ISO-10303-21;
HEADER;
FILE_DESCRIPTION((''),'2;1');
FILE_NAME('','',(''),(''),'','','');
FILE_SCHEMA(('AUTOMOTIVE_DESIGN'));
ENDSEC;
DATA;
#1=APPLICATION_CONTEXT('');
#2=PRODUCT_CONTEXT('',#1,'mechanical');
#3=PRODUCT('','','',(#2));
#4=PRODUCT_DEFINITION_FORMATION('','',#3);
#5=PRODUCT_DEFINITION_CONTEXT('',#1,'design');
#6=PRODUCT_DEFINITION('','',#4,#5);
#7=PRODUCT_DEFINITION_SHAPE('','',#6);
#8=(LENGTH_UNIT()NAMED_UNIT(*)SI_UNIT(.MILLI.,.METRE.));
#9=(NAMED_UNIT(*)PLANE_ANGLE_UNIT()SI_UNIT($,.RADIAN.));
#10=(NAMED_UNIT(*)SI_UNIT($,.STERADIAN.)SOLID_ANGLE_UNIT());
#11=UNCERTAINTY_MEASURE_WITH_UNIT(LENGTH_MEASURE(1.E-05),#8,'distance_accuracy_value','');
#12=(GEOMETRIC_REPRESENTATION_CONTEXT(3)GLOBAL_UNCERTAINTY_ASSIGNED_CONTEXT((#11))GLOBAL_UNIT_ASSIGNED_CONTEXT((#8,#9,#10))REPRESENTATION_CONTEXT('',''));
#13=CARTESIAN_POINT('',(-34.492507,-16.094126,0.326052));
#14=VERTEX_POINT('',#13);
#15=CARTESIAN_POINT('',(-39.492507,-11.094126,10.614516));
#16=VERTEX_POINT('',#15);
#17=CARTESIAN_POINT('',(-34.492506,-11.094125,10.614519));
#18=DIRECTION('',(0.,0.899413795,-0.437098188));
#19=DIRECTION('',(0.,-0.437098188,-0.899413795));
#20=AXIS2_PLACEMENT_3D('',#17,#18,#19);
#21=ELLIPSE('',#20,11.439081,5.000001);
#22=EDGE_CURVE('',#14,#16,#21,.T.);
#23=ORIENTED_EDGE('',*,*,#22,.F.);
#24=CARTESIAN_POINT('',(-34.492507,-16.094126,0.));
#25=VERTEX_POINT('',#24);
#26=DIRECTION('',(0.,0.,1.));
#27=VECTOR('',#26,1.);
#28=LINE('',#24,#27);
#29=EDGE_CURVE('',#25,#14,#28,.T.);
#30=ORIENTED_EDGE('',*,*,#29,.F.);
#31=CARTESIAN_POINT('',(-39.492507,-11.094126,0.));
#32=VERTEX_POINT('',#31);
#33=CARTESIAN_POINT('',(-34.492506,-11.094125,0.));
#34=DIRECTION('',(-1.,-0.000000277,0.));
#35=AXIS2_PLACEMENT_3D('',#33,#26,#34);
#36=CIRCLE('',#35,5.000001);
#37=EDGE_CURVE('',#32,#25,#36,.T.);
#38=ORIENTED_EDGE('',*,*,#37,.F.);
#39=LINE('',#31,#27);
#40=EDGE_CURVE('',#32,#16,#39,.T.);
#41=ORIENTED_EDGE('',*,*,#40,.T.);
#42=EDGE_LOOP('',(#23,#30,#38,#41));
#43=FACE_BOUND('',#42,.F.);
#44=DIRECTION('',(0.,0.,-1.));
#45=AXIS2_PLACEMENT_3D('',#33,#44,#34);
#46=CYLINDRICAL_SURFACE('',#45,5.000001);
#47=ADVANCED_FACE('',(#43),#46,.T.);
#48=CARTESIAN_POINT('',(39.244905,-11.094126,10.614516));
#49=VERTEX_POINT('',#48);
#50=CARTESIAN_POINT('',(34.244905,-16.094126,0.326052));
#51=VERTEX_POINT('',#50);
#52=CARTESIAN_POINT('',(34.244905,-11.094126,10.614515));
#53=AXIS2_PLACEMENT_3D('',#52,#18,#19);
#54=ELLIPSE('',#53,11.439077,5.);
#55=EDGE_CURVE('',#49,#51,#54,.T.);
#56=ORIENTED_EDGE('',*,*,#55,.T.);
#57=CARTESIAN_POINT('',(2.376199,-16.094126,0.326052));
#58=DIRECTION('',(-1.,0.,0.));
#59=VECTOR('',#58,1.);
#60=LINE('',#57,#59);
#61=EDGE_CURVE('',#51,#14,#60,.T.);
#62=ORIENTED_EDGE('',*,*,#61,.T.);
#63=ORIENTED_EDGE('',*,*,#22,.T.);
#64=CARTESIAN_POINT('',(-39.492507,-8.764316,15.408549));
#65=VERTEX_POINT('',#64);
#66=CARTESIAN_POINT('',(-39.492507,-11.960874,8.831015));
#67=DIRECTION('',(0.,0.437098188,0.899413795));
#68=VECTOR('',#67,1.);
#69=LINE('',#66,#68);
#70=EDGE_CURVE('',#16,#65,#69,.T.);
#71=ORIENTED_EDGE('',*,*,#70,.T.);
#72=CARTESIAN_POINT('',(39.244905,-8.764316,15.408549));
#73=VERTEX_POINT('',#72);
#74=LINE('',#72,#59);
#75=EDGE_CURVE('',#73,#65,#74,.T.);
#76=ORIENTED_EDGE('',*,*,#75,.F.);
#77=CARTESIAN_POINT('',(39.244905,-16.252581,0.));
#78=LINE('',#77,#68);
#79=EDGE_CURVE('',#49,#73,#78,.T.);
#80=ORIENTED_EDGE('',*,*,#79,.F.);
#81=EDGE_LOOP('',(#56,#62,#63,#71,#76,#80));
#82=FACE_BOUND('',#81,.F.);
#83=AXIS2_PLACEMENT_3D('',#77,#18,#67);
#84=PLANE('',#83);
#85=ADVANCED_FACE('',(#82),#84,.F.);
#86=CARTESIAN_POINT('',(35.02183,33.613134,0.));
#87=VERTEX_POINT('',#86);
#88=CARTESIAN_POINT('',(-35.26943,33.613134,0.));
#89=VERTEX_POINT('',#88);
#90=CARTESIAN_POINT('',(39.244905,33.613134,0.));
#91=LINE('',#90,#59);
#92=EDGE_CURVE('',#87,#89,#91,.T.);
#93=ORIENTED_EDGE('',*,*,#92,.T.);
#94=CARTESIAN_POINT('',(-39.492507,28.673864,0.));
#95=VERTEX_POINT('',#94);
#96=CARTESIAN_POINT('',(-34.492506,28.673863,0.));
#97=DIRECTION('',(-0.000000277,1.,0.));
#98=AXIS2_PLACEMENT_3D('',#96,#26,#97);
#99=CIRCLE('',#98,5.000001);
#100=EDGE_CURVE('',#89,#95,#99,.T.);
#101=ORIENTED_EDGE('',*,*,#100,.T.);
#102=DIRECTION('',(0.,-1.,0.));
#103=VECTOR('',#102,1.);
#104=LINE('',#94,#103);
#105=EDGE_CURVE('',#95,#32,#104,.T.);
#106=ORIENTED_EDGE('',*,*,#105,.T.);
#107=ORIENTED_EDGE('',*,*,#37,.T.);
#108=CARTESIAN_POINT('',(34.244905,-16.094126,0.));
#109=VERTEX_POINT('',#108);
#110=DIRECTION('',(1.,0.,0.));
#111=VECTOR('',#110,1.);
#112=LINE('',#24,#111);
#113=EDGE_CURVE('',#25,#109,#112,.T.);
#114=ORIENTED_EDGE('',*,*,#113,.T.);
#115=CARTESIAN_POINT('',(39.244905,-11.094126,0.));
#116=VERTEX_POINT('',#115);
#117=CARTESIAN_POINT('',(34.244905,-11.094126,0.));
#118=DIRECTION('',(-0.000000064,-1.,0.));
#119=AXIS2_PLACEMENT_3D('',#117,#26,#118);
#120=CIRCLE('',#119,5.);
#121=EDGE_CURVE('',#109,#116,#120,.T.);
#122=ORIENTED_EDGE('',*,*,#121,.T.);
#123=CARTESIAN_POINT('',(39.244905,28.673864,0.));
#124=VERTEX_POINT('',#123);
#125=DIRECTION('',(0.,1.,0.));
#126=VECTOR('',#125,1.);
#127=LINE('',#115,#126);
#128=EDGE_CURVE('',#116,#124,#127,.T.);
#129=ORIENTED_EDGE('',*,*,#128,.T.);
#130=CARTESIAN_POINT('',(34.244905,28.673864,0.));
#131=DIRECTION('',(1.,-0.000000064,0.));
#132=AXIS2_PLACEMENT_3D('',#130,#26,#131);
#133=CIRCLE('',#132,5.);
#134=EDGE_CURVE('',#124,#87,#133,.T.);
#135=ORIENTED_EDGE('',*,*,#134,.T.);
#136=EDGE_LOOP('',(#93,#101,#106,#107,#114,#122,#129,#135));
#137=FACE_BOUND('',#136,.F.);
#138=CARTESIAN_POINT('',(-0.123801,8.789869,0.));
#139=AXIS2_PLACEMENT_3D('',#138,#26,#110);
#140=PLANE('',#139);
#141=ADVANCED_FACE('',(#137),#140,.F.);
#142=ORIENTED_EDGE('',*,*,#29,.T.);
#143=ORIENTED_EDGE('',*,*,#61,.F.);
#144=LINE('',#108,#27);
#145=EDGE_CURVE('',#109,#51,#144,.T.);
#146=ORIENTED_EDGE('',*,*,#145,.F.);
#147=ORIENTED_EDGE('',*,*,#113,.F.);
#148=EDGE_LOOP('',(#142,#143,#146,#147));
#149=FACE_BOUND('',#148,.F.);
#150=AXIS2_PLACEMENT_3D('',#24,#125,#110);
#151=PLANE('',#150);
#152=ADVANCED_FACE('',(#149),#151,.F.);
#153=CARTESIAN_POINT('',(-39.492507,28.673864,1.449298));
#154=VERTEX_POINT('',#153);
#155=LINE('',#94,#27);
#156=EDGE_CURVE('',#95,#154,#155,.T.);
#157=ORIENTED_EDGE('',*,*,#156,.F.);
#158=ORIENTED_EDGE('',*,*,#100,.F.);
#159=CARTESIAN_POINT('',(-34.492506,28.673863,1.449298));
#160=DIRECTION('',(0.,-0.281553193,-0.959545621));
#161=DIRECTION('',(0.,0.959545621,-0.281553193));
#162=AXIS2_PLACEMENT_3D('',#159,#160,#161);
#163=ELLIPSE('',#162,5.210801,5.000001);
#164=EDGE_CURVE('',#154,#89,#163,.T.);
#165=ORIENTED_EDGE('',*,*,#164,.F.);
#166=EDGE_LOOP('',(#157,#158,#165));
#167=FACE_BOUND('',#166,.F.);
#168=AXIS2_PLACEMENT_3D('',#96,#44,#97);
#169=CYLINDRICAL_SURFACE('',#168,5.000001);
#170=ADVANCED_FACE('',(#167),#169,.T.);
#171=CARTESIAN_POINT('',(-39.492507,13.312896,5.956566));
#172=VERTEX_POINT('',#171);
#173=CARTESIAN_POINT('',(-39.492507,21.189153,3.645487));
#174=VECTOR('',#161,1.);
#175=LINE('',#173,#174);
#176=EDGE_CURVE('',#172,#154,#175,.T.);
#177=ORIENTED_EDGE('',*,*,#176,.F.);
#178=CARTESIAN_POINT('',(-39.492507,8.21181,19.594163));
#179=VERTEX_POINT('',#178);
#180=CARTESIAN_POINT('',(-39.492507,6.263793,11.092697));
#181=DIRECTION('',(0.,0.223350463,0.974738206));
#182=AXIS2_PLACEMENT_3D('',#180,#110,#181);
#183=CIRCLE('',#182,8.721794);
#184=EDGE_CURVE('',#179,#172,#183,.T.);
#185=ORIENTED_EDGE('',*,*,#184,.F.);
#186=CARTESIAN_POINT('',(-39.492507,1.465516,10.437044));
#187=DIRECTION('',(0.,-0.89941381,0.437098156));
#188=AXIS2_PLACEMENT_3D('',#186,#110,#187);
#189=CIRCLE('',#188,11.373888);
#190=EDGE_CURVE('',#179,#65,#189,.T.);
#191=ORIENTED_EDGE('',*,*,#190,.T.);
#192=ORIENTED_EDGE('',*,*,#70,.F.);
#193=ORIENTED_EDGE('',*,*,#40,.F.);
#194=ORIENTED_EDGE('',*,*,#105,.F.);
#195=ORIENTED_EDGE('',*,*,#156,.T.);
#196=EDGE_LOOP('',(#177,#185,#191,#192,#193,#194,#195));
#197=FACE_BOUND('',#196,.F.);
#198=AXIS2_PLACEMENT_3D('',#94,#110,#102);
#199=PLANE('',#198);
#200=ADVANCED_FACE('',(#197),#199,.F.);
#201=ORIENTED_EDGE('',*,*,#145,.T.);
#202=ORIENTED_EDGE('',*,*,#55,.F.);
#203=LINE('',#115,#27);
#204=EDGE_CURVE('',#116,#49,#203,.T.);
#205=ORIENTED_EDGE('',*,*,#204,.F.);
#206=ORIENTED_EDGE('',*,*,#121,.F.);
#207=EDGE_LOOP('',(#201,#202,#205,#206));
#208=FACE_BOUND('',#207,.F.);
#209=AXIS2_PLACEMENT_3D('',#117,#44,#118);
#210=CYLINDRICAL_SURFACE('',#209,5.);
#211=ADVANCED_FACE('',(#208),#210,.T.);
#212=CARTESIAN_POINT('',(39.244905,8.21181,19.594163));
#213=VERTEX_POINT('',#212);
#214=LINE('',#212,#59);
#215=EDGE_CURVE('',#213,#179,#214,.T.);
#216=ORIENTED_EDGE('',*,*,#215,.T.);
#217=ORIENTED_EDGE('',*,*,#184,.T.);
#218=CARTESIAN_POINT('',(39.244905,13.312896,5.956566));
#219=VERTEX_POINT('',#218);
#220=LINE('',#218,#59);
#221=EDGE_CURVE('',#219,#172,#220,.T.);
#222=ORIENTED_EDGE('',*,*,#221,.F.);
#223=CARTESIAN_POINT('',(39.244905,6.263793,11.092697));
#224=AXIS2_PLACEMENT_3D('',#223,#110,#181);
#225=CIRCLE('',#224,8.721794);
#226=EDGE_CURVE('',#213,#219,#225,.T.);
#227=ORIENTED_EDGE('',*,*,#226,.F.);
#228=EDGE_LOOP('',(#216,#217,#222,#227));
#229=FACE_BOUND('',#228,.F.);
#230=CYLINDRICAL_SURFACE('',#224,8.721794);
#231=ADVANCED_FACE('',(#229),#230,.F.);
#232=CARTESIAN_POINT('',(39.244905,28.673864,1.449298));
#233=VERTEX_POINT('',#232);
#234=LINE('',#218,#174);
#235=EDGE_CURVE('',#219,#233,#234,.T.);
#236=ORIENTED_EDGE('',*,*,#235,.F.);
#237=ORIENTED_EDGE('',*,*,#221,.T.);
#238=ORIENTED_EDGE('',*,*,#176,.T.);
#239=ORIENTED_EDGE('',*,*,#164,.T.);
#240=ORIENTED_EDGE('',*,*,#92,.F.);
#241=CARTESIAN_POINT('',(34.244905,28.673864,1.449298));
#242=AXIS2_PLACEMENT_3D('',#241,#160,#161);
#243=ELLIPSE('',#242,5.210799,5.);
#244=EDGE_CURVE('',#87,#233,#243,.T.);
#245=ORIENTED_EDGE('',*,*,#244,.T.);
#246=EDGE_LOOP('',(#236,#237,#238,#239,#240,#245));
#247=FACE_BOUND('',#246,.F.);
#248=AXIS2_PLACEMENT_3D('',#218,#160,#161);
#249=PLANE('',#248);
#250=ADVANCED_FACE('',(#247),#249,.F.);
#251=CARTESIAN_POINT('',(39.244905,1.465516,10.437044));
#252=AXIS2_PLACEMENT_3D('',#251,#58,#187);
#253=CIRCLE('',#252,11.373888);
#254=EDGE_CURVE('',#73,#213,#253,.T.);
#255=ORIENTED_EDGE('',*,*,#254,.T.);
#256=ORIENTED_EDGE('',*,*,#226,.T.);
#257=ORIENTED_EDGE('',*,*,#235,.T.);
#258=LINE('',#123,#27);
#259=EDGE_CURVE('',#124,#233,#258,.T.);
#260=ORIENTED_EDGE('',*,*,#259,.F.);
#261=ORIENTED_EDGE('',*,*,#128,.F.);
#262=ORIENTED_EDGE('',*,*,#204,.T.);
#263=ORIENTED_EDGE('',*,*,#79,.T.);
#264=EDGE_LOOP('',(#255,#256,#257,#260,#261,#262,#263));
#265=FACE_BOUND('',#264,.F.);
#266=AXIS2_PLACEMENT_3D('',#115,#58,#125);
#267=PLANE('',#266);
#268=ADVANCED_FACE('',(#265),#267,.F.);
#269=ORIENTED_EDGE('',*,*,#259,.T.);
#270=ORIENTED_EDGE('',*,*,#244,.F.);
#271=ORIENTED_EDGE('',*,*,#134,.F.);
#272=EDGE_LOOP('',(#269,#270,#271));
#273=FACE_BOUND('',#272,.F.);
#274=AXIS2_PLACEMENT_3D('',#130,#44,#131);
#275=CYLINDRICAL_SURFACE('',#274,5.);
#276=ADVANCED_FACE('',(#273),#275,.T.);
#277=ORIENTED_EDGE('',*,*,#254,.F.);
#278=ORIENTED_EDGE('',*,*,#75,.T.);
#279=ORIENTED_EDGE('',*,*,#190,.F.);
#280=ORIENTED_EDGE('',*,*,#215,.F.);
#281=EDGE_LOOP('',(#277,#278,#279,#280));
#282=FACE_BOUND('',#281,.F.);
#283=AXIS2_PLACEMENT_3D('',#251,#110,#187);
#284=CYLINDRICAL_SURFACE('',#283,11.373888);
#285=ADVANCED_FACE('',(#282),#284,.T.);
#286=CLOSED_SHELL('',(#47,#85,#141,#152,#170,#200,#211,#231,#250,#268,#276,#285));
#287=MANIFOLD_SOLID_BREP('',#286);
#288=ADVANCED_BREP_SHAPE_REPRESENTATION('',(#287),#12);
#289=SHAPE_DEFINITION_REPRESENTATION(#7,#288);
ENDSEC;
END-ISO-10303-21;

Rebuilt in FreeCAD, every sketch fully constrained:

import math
import FreeCAD as App
import Part
import Sketcher
from FreeCAD import Vector
Q = App.Units.Quantity

doc = App.newDocument("Part")
body = doc.addObject("PartDesign::Body", "Body")

sketch1 = doc.addObject("Sketcher::SketchObject", "Sketch")
body.addObject(sketch1)
sketch1.AttachmentSupport = (doc.XY_Plane, [""])
sketch1.MapMode = "FlatFace"
sketch1.addGeometry([
    Part.LineSegment(Vector(34.244905, 33.673864, 0), Vector(-34.492507, 33.673864, 0)),
    Part.ArcOfCircle(Part.Circle(Vector(-34.492506, 28.673863, 0), Vector(0, 0, 1), 5.000001), math.radians(90.000016), math.radians(179.999984)),
    Part.LineSegment(Vector(-39.492507, 28.673864, 0), Vector(-39.492507, -11.094126, 0)),
    Part.ArcOfCircle(Part.Circle(Vector(-34.492506, -11.094125, 0), Vector(0, 0, 1), 5.000001), math.radians(-179.999984), math.radians(-90.000016)),
    Part.LineSegment(Vector(-34.492507, -16.094126, 0), Vector(34.244905, -16.094126, 0)),
    Part.ArcOfCircle(Part.Circle(Vector(34.244905, -11.094126, 0), Vector(0, 0, 1), 5), math.radians(-90.000004), math.radians(0.000004)),
    Part.LineSegment(Vector(39.244905, -11.094126, 0), Vector(39.244905, 28.673864, 0)),
    Part.ArcOfCircle(Part.Circle(Vector(34.244905, 28.673864, 0), Vector(0, 0, 1), 5), math.radians(-0.000004), math.radians(90.000004)),
], False)
sketch1.addConstraint([
    Sketcher.Constraint("Tangent", 0, 2, 1, 1),
    Sketcher.Constraint("Tangent", 1, 2, 2, 1),
    Sketcher.Constraint("Tangent", 2, 2, 3, 1),
    Sketcher.Constraint("Tangent", 3, 2, 4, 1),
    Sketcher.Constraint("Tangent", 4, 2, 5, 1),
    Sketcher.Constraint("Tangent", 5, 2, 6, 1),
    Sketcher.Constraint("Tangent", 6, 2, 7, 1),
    Sketcher.Constraint("Tangent", 7, 2, 0, 1),
    Sketcher.Constraint("Horizontal", 0),
    Sketcher.Constraint("Vertical", 2),
    Sketcher.Constraint("Horizontal", 4),
    Sketcher.Constraint("Vertical", 6),
    Sketcher.Constraint("Equal", 1, 3),
    Sketcher.Constraint("Equal", 3, 5),
    Sketcher.Constraint("Equal", 5, 7),
    Sketcher.Constraint("Radius", 1, Q("5.000001 mm")),
    Sketcher.Constraint("DistanceY", 2, 2, 2, 1, Q("39.76799 mm")),
    Sketcher.Constraint("DistanceX", 0, 2, 0, 1, Q("68.737412 mm")),
    Sketcher.Constraint("DistanceX", 1, 3, -1, 1, Q("34.492506 mm")),
    Sketcher.Constraint("DistanceY", -1, 1, 1, 3, Q("28.673863 mm")),
])
pad1 = doc.addObject("PartDesign::Pad", "Pad")
body.addObject(pad1)
pad1.Profile = sketch1
pad1.Length = 36.49653

sketch2 = doc.addObject("Sketcher::SketchObject", "Sketch001")
body.addObject(sketch2)
sketch2.AttachmentSupport = (doc.YZ_Plane, [""])
sketch2.MapMode = "FlatFace"
sketch2.AttachmentOffset = App.Placement(Vector(0, 0, 39.244905), App.Rotation())
sketch2.addGeometry([
    Part.ArcOfCircle(Part.Circle(Vector(1.465516, 10.437044, 0), Vector(0, 0, 1), 11.373888), math.radians(53.619934), math.radians(154.081122)),
    Part.ArcOfCircle(Part.Circle(Vector(6.263793, 11.092697, 0), Vector(0, 0, 1), 8.721794), math.radians(77.094102), math.radians(323.922097)),
    Part.LineSegment(Vector(13.312896, 5.956566, 0), Vector(33.613134, 0, 0)),
    Part.LineSegment(Vector(33.613134, 0, 0), Vector(54.329786, -9.86721, 0)),
    Part.LineSegment(Vector(54.329786, -9.86721, 0), Vector(53.184647, 35.41794, 0)),
    Part.LineSegment(Vector(53.184647, 35.41794, 0), Vector(12.584168, 41.872375, 0)),
    Part.LineSegment(Vector(12.584168, 41.872375, 0), Vector(-31.451736, 39.269779, 0)),
    Part.LineSegment(Vector(-31.451736, 39.269779, 0), Vector(-27.391687, -11.949287, 0)),
    Part.LineSegment(Vector(-27.391687, -11.949287, 0), Vector(-16.252581, 0, 0)),
    Part.LineSegment(Vector(-16.252581, 0, 0), Vector(-8.764316, 15.408549, 0)),
], False)
sketch2.addConstraint([
    Sketcher.Constraint("Coincident", 0, 1, 1, 1),
    Sketcher.Constraint("Coincident", 1, 2, 2, 1),
    Sketcher.Constraint("Coincident", 2, 2, 3, 1),
    Sketcher.Constraint("Coincident", 3, 2, 4, 1),
    Sketcher.Constraint("Coincident", 4, 2, 5, 1),
    Sketcher.Constraint("Coincident", 5, 2, 6, 1),
    Sketcher.Constraint("Coincident", 6, 2, 7, 1),
    Sketcher.Constraint("Coincident", 7, 2, 8, 1),
    Sketcher.Constraint("Coincident", 8, 2, 9, 1),
    Sketcher.Constraint("Tangent", 9, 2, 0, 2),
    Sketcher.Constraint("PointOnObject", 2, 2, -1),
    Sketcher.Constraint("PointOnObject", 8, 2, -1),
    Sketcher.Constraint("Radius", 0, Q("11.373888 mm")),
    Sketcher.Constraint("Radius", 1, Q("8.721794 mm")),
    Sketcher.Constraint("Distance", 7, Q("51.379731 mm")),
    Sketcher.Constraint("Distance", 9, Q("17.131769 mm")),
    Sketcher.Constraint("DistanceX", -1, 1, 0, 1, Q("8.21181 mm")),
    Sketcher.Constraint("DistanceY", 3, 2, -1, 1, Q("9.86721 mm")),
    Sketcher.Constraint("DistanceY", -1, 1, 4, 2, Q("35.41794 mm")),
    Sketcher.Constraint("DistanceY", -1, 1, 6, 2, Q("39.269779 mm")),
    Sketcher.Constraint("DistanceX", 8, 2, -1, 1, Q("16.252581 mm")),
    Sketcher.Constraint("DistanceY", -1, 1, 9, 2, Q("15.408549 mm")),
    Sketcher.Constraint("DistanceY", 1, 2, 1, 3, Q("5.136131 mm")),
    Sketcher.Constraint("DistanceX", 0, 3, 1, 2, Q("11.84738 mm")),
    Sketcher.Constraint("DistanceX", 1, 2, 2, 2, Q("20.300238 mm")),
    Sketcher.Constraint("DistanceX", 2, 2, 3, 2, Q("20.716652 mm")),
    Sketcher.Constraint("DistanceX", 4, 2, 3, 2, Q("1.145139 mm")),
    Sketcher.Constraint("DistanceY", 0, 1, 5, 2, Q("22.278212 mm")),
    Sketcher.Constraint("DistanceX", 5, 2, 4, 2, Q("40.600479 mm")),
    Sketcher.Constraint("DistanceX", 6, 2, 0, 3, Q("32.917252 mm")),
    Sketcher.Constraint("DistanceY", 7, 2, 0, 3, Q("22.386331 mm")),
])
pocket1 = doc.addObject("PartDesign::Pocket", "Pocket")
body.addObject(pocket1)
pocket1.Profile = sketch2
pocket1.Type = "ThroughAll"
pocket1.Midplane = True

doc.recompute()
